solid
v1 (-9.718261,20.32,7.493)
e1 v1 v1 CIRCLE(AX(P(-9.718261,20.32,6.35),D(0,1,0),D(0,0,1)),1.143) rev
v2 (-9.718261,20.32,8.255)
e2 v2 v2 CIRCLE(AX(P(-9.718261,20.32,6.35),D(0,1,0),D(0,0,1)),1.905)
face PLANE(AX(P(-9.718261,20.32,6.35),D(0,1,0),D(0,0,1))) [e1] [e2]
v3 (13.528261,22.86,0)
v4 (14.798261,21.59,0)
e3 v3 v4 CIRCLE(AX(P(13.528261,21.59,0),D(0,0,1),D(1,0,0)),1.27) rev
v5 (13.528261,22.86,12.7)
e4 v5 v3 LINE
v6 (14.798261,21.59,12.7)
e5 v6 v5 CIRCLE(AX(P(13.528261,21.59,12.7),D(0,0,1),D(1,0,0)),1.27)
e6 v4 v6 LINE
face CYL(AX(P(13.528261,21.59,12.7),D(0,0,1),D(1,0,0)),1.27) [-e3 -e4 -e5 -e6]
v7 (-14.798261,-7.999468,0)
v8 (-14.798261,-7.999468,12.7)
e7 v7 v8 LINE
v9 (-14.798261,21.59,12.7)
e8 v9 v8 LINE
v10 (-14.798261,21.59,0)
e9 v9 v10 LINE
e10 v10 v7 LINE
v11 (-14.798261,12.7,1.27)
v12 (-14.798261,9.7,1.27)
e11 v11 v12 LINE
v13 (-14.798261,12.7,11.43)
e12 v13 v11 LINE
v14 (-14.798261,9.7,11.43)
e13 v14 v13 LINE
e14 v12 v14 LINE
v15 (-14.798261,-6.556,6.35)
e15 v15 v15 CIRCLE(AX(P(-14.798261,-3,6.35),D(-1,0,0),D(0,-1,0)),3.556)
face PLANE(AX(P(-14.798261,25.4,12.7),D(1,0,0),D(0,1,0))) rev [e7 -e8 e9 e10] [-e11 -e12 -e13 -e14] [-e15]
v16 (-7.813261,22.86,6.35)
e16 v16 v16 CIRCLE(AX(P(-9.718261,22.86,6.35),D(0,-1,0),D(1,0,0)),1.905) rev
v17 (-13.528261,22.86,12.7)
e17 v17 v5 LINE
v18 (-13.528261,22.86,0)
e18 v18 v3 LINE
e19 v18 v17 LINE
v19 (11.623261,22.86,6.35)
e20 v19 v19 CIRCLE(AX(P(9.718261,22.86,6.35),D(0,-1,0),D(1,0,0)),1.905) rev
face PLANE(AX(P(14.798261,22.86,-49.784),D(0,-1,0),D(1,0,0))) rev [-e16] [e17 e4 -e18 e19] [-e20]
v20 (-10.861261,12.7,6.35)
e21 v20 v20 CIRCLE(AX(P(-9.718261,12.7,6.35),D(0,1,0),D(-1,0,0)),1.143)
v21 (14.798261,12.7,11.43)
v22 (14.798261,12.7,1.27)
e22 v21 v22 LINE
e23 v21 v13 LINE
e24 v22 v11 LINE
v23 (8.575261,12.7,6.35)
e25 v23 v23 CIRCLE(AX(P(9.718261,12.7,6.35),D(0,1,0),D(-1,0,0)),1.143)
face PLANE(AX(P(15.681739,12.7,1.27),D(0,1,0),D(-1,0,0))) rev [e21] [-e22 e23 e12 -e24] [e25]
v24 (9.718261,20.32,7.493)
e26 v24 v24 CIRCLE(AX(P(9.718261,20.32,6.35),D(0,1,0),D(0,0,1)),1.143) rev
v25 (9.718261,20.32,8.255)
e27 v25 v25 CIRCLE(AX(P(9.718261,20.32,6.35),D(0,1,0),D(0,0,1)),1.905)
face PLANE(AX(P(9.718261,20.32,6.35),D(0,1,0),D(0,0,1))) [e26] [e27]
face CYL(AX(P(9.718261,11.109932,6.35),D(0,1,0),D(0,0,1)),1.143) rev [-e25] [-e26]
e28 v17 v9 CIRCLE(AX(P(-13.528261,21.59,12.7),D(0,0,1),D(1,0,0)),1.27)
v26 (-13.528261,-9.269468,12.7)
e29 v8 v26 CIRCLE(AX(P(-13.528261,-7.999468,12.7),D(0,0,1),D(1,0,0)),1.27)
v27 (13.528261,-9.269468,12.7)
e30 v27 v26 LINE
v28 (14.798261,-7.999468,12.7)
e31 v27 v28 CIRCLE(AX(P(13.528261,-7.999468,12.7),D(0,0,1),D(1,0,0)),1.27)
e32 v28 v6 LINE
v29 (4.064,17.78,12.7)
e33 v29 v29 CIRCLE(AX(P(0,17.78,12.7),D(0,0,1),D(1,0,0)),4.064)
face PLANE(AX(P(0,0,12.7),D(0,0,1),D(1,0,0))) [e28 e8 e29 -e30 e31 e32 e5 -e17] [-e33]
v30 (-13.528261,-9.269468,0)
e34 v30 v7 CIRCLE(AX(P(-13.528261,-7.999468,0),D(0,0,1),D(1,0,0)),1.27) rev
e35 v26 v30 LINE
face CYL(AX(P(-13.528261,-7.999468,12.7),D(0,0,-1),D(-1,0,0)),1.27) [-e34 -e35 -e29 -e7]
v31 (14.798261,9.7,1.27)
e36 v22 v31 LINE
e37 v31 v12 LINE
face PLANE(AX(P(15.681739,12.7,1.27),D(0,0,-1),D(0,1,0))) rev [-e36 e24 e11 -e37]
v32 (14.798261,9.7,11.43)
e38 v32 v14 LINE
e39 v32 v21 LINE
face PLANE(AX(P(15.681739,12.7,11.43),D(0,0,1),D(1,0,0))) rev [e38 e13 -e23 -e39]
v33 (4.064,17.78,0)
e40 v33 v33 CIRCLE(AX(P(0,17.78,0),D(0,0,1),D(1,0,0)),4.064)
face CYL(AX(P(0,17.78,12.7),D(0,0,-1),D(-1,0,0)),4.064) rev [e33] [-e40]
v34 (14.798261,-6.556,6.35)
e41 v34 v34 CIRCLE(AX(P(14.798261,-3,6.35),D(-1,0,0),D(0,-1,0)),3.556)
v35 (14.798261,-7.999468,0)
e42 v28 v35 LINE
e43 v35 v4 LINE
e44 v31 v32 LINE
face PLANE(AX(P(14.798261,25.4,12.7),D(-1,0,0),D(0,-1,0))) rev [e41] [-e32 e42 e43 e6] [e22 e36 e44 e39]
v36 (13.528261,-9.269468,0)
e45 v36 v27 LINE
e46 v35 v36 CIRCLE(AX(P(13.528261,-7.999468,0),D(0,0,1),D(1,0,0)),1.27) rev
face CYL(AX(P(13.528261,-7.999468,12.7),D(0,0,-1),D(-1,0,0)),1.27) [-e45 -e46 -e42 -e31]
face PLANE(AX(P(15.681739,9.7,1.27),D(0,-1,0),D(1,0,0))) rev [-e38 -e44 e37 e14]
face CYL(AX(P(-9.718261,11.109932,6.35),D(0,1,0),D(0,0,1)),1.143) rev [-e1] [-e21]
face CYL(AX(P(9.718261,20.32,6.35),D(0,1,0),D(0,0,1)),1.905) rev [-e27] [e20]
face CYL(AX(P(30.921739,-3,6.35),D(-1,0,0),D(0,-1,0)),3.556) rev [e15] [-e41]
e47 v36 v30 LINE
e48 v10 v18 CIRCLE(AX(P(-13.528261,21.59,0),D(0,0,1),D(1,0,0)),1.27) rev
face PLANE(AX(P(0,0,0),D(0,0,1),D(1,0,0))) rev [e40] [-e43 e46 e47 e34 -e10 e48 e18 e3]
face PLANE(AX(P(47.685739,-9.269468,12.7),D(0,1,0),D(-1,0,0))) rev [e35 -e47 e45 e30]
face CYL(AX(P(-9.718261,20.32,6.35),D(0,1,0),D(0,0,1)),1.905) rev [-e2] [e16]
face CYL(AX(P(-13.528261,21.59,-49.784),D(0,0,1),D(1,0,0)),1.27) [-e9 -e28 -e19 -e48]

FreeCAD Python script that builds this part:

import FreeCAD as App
import Part
import Sketcher
Q = App.Units.Quantity


def edges_at(feature, points):
    """Names of the edges that pass closest to the given points."""
    edges = feature.Shape.Edges
    near = lambda p: min(range(len(edges)), key=lambda i: edges[i].distToShape(Part.Vertex(*p))[0])
    return sorted({f"Edge{near(p) + 1}" for p in points})


def add_polygon(sketch, points):
    """Adds a closed chain of lines whose ends are joined by coincident constraints."""
    first, n = sketch.GeometryCount, len(points)
    for a, b in zip(points, points[1:] + points[:1]):
        sketch.addGeometry(Part.LineSegment(App.Vector(*a, 0), App.Vector(*b, 0)), False)
    for i in range(n):
        sketch.addConstraint(Sketcher.Constraint("Coincident", first + i, 2, first + (i + 1) % n, 1))

doc = App.newDocument("Part")
params = doc.addObject("Spreadsheet::Sheet", "Params")
for row, (alias, value) in enumerate([
    ("sketch1_diameter", "0.32 in"),
    ("sketch1_height", "2 in"),
    ("pad1_length", "0.5 in"),
    ("sketch2_height", "0.4 in"),
    ("pocket1_length", "1.2 in"),
    ("sketch3_diameter", "0.28 in"),
    ("pocket2_length", "1.8 in"),
    ("sketch4_diameter", "0.09 in"),
    ("pocket3_length", "14.290068 mm"),
    ("sketch5_diameter", "0.15 in"),
    ("pocket4_length", "0.2 in"),
    ("sketch6_height", "0.5 in"),
    ("pocket5_length", "2.46 in"),
    ("sketch7_height", "0.1 in"),
    ("pocket6_length", "2.46 in"),
    ("sketch8_width", "0.2 in"),
    ("sketch8_height", "0.5 in"),
    ("pocket7_length", "2.46 in"),
    ("fillet_radius", "0.05 in"),
], start=1):
    params.set(f"A{row}", alias)
    params.set(f"B{row}", "=" + value)
    params.setAlias(f"B{row}", alias)

body = doc.addObject("PartDesign::Body", "Body")

# Sketch on XY plane
sketch1 = body.newObject("Sketcher::SketchObject", "Sketch")
sketch1.AttachmentSupport = (doc.getObject("XY_Plane"), [""])
sketch1.MapMode = "FlatFace"
add_polygon(sketch1, [(-14.798261, 25.4), (-14.798261, -25.4), (14.798261, -25.4), (14.798261, 25.4)])  # lines 0-3
sketch1.addGeometry(Part.Circle(App.Vector(0, 17.78, 0), App.Vector(0, 0, 1), 4.064), False)  # 4
sketch1.addConstraint(Sketcher.Constraint("Vertical", 0))
sketch1.addConstraint(Sketcher.Constraint("Horizontal", 1))
sketch1.addConstraint(Sketcher.Constraint("Vertical", 2))
sketch1.addConstraint(Sketcher.Constraint("Horizontal", 3))
sketch1.addConstraint(Sketcher.Constraint("Symmetric", 0, 2, 2, 2, -1, 1))
sketch1.addConstraint(Sketcher.Constraint("PointOnObject", 4, 3, -2))
sketch1.addConstraint(Sketcher.Constraint("Diameter", 4, Q("0.32 in")))
sketch1.addConstraint(Sketcher.Constraint("DistanceY", 0, 2, 0, 1, Q("2 in")))
sketch1.addConstraint(Sketcher.Constraint("DistanceY", -1, 1, 4, 3, Q("0.7 in")))
sketch1.addConstraint(Sketcher.Constraint("DistanceX", 1, 1, 1, 2, 29.596522))
sketch1.setExpression("Constraints[10]", "Params.sketch1_diameter")
sketch1.setExpression("Constraints[11]", "Params.sketch1_height")
pad1 = body.newObject("PartDesign::Pad", "Pad")
pad1.Profile = sketch1
pad1.setExpression("Length", "Params.pad1_length")

# Sketch on YZ plane
sketch2 = body.newObject("Sketcher::SketchObject", "Sketch001")
sketch2.AttachmentSupport = (doc.getObject("YZ_Plane"), [""])
sketch2.MapMode = "FlatFace"
sketch2.AttachmentOffset = App.Placement(App.Vector(0, 0, -14.798261), App.Rotation())
add_polygon(sketch2, [(12.7, 1.27), (9.7, 1.27), (9.7, 11.43), (12.7, 11.43)])  # lines 0-3
sketch2.addConstraint(Sketcher.Constraint("Horizontal", 0))
sketch2.addConstraint(Sketcher.Constraint("Vertical", 1))
sketch2.addConstraint(Sketcher.Constraint("Horizontal", 2))
sketch2.addConstraint(Sketcher.Constraint("Vertical", 3))
sketch2.addConstraint(Sketcher.Constraint("DistanceY", 1, 1, 1, 2, Q("0.4 in")))
sketch2.addConstraint(Sketcher.Constraint("DistanceX", -1, 1, 2, 2, Q("0.5 in")))
sketch2.addConstraint(Sketcher.Constraint("DistanceY", -1, 1, 0, 2, Q("0.05 in")))
sketch2.addConstraint(Sketcher.Constraint("DistanceX", 0, 2, 0, 1, 3.0))
sketch2.setExpression("Constraints[8]", "Params.sketch2_height")
pocket1 = body.newObject("PartDesign::Pocket", "Pocket")
pocket1.Profile = sketch2
pocket1.setExpression("Length", "Params.pocket1_length")
pocket1.Reversed = True

# Sketch on YZ plane
sketch3 = body.newObject("Sketcher::SketchObject", "Sketch002")
sketch3.AttachmentSupport = (doc.getObject("YZ_Plane"), [""])
sketch3.MapMode = "FlatFace"
sketch3.AttachmentOffset = App.Placement(App.Vector(0, 0, -14.798261), App.Rotation())
sketch3.addGeometry(Part.Circle(App.Vector(-3, 6.35, 0), App.Vector(0, 0, 1), 3.556), False)
sketch3.addConstraint(Sketcher.Constraint("Diameter", 0, Q("0.28 in")))
sketch3.addConstraint(Sketcher.Constraint("DistanceY", -1, 1, 0, 3, Q("0.25 in")))
sketch3.addConstraint(Sketcher.Constraint("DistanceX", 0, 3, -1, 1, 3.0))
sketch3.setExpression("Constraints[0]", "Params.sketch3_diameter")
pocket2 = body.newObject("PartDesign::Pocket", "Pocket001")
pocket2.Profile = sketch3
pocket2.setExpression("Length", "Params.pocket2_length")
pocket2.Reversed = True

# Sketch on XZ plane
sketch4 = body.newObject("Sketcher::SketchObject", "Sketch003")
sketch4.AttachmentSupport = (doc.getObject("XZ_Plane"), [""])
sketch4.MapMode = "FlatFace"
sketch4.AttachmentOffset = App.Placement(App.Vector(0, 0, -1 * 25.4), App.Rotation())
sketch4.addGeometry(Part.Circle(App.Vector(9.718261, 6.35, 0), App.Vector(0, 0, 1), 1.143), False)
sketch4.addGeometry(Part.Circle(App.Vector(-9.718261, 6.35, 0), App.Vector(0, 0, 1), 1.143), False)
sketch4.addConstraint(Sketcher.Constraint("Equal", 0, 1))
sketch4.addConstraint(Sketcher.Constraint("Symmetric", 0, 3, 1, 3, -2))
sketch4.addConstraint(Sketcher.Constraint("Diameter", 0, Q("0.09 in")))
sketch4.addConstraint(Sketcher.Constraint("DistanceY", -1, 1, 0, 3, Q("0.25 in")))
sketch4.addConstraint(Sketcher.Constraint("DistanceX", -1, 1, 0, 3, 9.718261))
sketch4.setExpression("Constraints[2]", "Params.sketch4_diameter")
pocket3 = body.newObject("PartDesign::Pocket", "Pocket002")
pocket3.Profile = sketch4
pocket3.setExpression("Length", "Params.pocket3_length")
pocket3.Reversed = True

# Sketch on XZ plane
sketch5 = body.newObject("Sketcher::SketchObject", "Sketch004")
sketch5.AttachmentSupport = (doc.getObject("XZ_Plane"), [""])
sketch5.MapMode = "FlatFace"
sketch5.AttachmentOffset = App.Placement(App.Vector(0, 0, -1 * 25.4), App.Rotation())
sketch5.addGeometry(Part.Circle(App.Vector(-9.718261, 6.35, 0), App.Vector(0, 0, 1), 1.905), False)
sketch5.addGeometry(Part.Circle(App.Vector(9.718261, 6.35, 0), App.Vector(0, 0, 1), 1.905), False)
sketch5.addConstraint(Sketcher.Constraint("Equal", 0, 1))
sketch5.addConstraint(Sketcher.Constraint("Symmetric", 0, 3, 1, 3, -2))
sketch5.addConstraint(Sketcher.Constraint("Diameter", 0, Q("0.15 in")))
sketch5.addConstraint(Sketcher.Constraint("DistanceY", -1, 1, 0, 3, Q("0.25 in")))
sketch5.addConstraint(Sketcher.Constraint("DistanceX", 0, 3, -1, 1, 9.718261))
sketch5.setExpression("Constraints[2]", "Params.sketch5_diameter")
pocket4 = body.newObject("PartDesign::Pocket", "Pocket003")
pocket4.Profile = sketch5
pocket4.setExpression("Length", "Params.pocket4_length")
pocket4.Reversed = True

# Sketch on YZ plane
sketch6 = body.newObject("Sketcher::SketchObject", "Sketch005")
sketch6.AttachmentSupport = (doc.getObject("YZ_Plane"), [""])
sketch6.MapMode = "FlatFace"
sketch6.AttachmentOffset = App.Placement(App.Vector(0, 0, -14.798261), App.Rotation())
add_polygon(sketch6, [(-14.349468, 0), (-25.4, 0), (-25.4, 12.7), (-14.349468, 12.7)])  # lines 0-3
sketch6.addConstraint(Sketcher.Constraint("Horizontal", 0))
sketch6.addConstraint(Sketcher.Constraint("Vertical", 1))
sketch6.addConstraint(Sketcher.Constraint("Horizontal", 2))
sketch6.addConstraint(Sketcher.Constraint("Vertical", 3))
sketch6.addConstraint(Sketcher.Constraint("PointOnObject", 0, 2, -1))
sketch6.addConstraint(Sketcher.Constraint("DistanceY", 1, 1, 1, 2, Q("0.5 in")))
sketch6.addConstraint(Sketcher.Constraint("DistanceX", 0, 2, -1, 1, Q("1 in")))
sketch6.addConstraint(Sketcher.Constraint("DistanceX", 0, 2, 0, 1, 11.050532))
sketch6.setExpression("Constraints[9]", "Params.sketch6_height")
pocket5 = body.newObject("PartDesign::Pocket", "Pocket004")
pocket5.Profile = sketch6
pocket5.setExpression("Length", "Params.pocket5_length")
pocket5.Reversed = True

# Sketch on XY plane
sketch7 = body.newObject("Sketcher::SketchObject", "Sketch006")
sketch7.AttachmentSupport = (doc.getObject("XY_Plane"), [""])
sketch7.MapMode = "FlatFace"
sketch7.AttachmentOffset = App.Placement(App.Vector(0, 0, 0.5 * 25.4), App.Rotation())
add_polygon(sketch7, [(-14.798261, 25.4), (-14.798261, 22.86), (14.798261, 22.86), (14.798261, 25.4)])  # lines 0-3
sketch7.addConstraint(Sketcher.Constraint("Vertical", 0))
sketch7.addConstraint(Sketcher.Constraint("Horizontal", 1))
sketch7.addConstraint(Sketcher.Constraint("Vertical", 2))
sketch7.addConstraint(Sketcher.Constraint("Horizontal", 3))
sketch7.addConstraint(Sketcher.Constraint("DistanceY", 0, 2, 0, 1, Q("0.1 in")))
sketch7.addConstraint(Sketcher.Constraint("DistanceY", -1, 1, 2, 2, Q("1 in")))
sketch7.addConstraint(Sketcher.Constraint("DistanceX", 1, 1, 1, 2, 29.596522))
sketch7.addConstraint(Sketcher.Constraint("DistanceX", 0, 2, -1, 1, 14.798261))
sketch7.setExpression("Constraints[8]", "Params.sketch7_height")
pocket6 = body.newObject("PartDesign::Pocket", "Pocket005")
pocket6.Profile = sketch7
pocket6.setExpression("Length", "Params.pocket6_length")

# Sketch on YZ plane
sketch8 = body.newObject("Sketcher::SketchObject", "Sketch007")
sketch8.AttachmentSupport = (doc.getObject("YZ_Plane"), [""])
sketch8.MapMode = "FlatFace"
sketch8.AttachmentOffset = App.Placement(App.Vector(0, 0, -14.798261), App.Rotation())
add_polygon(sketch8, [(-9.269468, 0), (-14.349468, 0), (-14.349468, 12.7), (-9.269468, 12.7)])  # lines 0-3
sketch8.addConstraint(Sketcher.Constraint("Horizontal", 0))
sketch8.addConstraint(Sketcher.Constraint("Vertical", 1))
sketch8.addConstraint(Sketcher.Constraint("Horizontal", 2))
sketch8.addConstraint(Sketcher.Constraint("Vertical", 3))
sketch8.addConstraint(Sketcher.Constraint("PointOnObject", 0, 2, -1))
sketch8.addConstraint(Sketcher.Constraint("DistanceX", 0, 2, 0, 1, Q("0.2 in")))
sketch8.addConstraint(Sketcher.Constraint("DistanceY", 1, 1, 1, 2, Q("0.5 in")))
sketch8.addConstraint(Sketcher.Constraint("DistanceX", 0, 2, -1, 1, 14.349468))
sketch8.setExpression("Constraints[9]", "Params.sketch8_width")
sketch8.setExpression("Constraints[10]", "Params.sketch8_height")
pocket7 = body.newObject("PartDesign::Pocket", "Pocket006")
pocket7.Profile = sketch8
pocket7.setExpression("Length", "Params.pocket7_length")
pocket7.Reversed = True
doc.recompute()

fillet = body.newObject("PartDesign::Fillet", "Fillet")
fillet.Base = (pocket7, edges_at(pocket7, [
    (14.798, -9.269, 6.35),
    (-14.798, -9.269, 6.35),
    (-14.798, 22.86, 6.35),
    (14.798, 22.86, 6.35),
]))
fillet.setExpression("Radius", "Params.fillet_radius")

doc.recompute()
